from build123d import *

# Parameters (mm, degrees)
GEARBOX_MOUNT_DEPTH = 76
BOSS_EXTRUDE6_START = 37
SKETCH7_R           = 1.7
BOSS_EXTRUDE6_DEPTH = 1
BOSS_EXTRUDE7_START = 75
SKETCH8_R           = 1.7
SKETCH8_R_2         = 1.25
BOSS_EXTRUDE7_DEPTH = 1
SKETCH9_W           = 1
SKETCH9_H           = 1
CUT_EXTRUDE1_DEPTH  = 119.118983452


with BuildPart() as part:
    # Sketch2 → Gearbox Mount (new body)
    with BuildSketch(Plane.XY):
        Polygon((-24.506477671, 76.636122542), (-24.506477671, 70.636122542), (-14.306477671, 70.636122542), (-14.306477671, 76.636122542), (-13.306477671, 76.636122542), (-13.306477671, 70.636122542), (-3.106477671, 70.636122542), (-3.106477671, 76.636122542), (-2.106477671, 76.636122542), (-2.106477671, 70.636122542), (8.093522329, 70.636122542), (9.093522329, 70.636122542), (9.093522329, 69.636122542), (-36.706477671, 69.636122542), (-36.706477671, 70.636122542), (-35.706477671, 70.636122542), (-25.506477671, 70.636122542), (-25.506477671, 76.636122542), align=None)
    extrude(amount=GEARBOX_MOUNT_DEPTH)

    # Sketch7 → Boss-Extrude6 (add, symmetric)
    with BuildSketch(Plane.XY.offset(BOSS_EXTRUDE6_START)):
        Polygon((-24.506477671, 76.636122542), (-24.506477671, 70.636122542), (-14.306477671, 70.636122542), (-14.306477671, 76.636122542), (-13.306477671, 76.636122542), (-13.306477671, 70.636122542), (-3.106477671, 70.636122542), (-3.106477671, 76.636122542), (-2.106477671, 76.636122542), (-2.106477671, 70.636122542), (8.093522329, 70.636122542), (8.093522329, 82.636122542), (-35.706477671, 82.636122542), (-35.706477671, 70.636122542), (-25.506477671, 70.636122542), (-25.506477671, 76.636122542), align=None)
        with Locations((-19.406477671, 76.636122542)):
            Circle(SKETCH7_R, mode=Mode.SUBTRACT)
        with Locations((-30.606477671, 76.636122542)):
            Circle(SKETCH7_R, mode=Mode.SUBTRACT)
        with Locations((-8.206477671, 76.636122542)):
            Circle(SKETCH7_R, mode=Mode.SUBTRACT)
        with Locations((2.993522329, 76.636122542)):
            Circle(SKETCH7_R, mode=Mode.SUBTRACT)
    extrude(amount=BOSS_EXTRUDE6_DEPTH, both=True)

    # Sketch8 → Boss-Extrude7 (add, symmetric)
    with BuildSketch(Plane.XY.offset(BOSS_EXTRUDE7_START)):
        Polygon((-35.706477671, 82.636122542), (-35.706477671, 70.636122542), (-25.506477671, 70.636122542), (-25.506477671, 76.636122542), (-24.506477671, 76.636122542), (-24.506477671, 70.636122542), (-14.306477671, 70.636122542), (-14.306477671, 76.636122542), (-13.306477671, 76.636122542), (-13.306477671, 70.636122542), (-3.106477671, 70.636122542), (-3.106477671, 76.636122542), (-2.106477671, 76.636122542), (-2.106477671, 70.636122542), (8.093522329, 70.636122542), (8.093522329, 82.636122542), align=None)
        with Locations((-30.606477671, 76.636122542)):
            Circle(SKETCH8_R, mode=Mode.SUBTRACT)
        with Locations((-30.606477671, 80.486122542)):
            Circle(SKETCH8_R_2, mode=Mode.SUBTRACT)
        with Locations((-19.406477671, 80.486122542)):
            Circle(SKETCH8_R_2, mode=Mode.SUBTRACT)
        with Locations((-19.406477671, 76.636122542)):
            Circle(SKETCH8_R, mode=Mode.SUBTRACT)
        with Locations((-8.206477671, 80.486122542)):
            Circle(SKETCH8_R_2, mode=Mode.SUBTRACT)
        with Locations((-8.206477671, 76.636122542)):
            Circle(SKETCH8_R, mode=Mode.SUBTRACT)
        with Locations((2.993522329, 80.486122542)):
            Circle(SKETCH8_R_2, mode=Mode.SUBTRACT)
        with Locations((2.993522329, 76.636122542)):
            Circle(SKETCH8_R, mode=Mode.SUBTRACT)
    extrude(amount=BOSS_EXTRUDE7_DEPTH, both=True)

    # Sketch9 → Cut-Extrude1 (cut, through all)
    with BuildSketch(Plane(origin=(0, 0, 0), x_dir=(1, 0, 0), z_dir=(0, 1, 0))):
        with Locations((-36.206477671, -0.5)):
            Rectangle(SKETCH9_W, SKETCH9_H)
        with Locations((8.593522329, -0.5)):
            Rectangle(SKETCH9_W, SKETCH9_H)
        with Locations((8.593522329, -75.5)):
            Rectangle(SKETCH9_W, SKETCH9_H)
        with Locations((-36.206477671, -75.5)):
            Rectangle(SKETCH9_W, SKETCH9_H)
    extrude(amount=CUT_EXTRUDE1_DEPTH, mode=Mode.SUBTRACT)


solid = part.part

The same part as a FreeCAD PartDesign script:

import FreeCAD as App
import Part
import Sketcher
from FreeCAD import Vector
Q = App.Units.Quantity


def add_polygon(sketch, points):
    """Adds a closed chain of lines whose ends are joined by coincident constraints."""
    first, n = sketch.GeometryCount, len(points)
    for a, b in zip(points, points[1:] + points[:1]):
        sketch.addGeometry(Part.LineSegment(App.Vector(*a, 0), App.Vector(*b, 0)), False)
    for i in range(n):
        sketch.addConstraint(Sketcher.Constraint("Coincident", first + i, 2, first + (i + 1) % n, 1))

doc = App.newDocument("Part")
body = doc.addObject("PartDesign::Body", "Body")

# Sketch on XY plane
sketch1 = doc.addObject("Sketcher::SketchObject", "Sketch")
body.addObject(sketch1)
sketch1.AttachmentSupport = (doc.XY_Plane, [""])
sketch1.MapMode = "FlatFace"
add_polygon(sketch1, [(-24.506478, 70.636123), (-24.506478, 76.636123), (-25.506478, 76.636123), (-25.506478, 70.636123), (-36.706478, 70.636123), (-36.706478, 69.636123), (9.093522, 69.636123), (9.093522, 70.636123), (-2.106478, 70.636123), (-2.106478, 76.636123), (-3.106478, 76.636123), (-3.106478, 70.636123), (-13.306478, 70.636123), (-13.306478, 76.636123), (-14.306478, 76.636123), (-14.306478, 70.636123)])  # lines 0-15
sketch1.addConstraint([
    Sketcher.Constraint("Vertical", 0),
    Sketcher.Constraint("Horizontal", 1),
    Sketcher.Constraint("Vertical", 2),
    Sketcher.Constraint("Horizontal", 3),
    Sketcher.Constraint("Vertical", 4),
    Sketcher.Constraint("Horizontal", 5),
    Sketcher.Constraint("Vertical", 6),
    Sketcher.Constraint("Horizontal", 7),
    Sketcher.Constraint("Vertical", 8),
    Sketcher.Constraint("Horizontal", 9),
    Sketcher.Constraint("Vertical", 10),
    Sketcher.Constraint("Horizontal", 11),
    Sketcher.Constraint("Vertical", 12),
    Sketcher.Constraint("Horizontal", 13),
    Sketcher.Constraint("Vertical", 14),
    Sketcher.Constraint("Horizontal", 15),
    Sketcher.Constraint("Horizontal", 3, 2, 6, 2),
    Sketcher.Constraint("Horizontal", 1, 2, 8, 2),
    Sketcher.Constraint("Horizontal", 7, 2, 10, 2),
    Sketcher.Constraint("Horizontal", 9, 2, 12, 2),
    Sketcher.Constraint("Horizontal", 11, 2, 14, 2),
    Sketcher.Constraint("Equal", 3, 7),
    Sketcher.Constraint("Equal", 1, 9),
    Sketcher.Constraint("Equal", 9, 13),
    Sketcher.Constraint("Equal", 11, 15),
    Sketcher.Constraint("Equal", 13, 4),
    Sketcher.Constraint("DistanceX", 1, 2, 1, 1, Q("1 mm")),
    Sketcher.Constraint("DistanceY", 0, 1, 0, 2, Q("6 mm")),
    Sketcher.Constraint("DistanceX", 3, 2, 3, 1, Q("11.2 mm")),
    Sketcher.Constraint("DistanceX", 5, 1, 5, 2, Q("45.8 mm")),
    Sketcher.Constraint("DistanceX", 0, 2, -1, 1, Q("24.506478 mm")),
    Sketcher.Constraint("DistanceY", -1, 1, 0, 2, Q("76.636123 mm")),
])
pad1 = doc.addObject("PartDesign::Pad", "Pad")
body.addObject(pad1)
pad1.Profile = sketch1
pad1.Length = 76

# Sketch on XY plane
sketch2 = doc.addObject("Sketcher::SketchObject", "Sketch001")
body.addObject(sketch2)
sketch2.AttachmentSupport = (doc.XY_Plane, [""])
sketch2.MapMode = "FlatFace"
sketch2.AttachmentOffset = App.Placement(Vector(0, 0, 37), App.Rotation())
add_polygon(sketch2, [(-24.506478, 76.636123), (-24.506478, 70.636123), (-14.306478, 70.636123), (-14.306478, 76.636123), (-13.306478, 76.636123), (-13.306478, 70.636123), (-3.106478, 70.636123), (-3.106478, 76.636123), (-2.106478, 76.636123), (-2.106478, 70.636123), (8.093522, 70.636123), (8.093522, 82.636123), (-35.706478, 82.636123), (-35.706478, 70.636123), (-25.506478, 70.636123), (-25.506478, 76.636123)])  # lines 0-15
sketch2.addGeometry(Part.Circle(Vector(-30.606478, 76.636123, 0), Vector(0, 0, 1), 1.7), False)  # 16
sketch2.addGeometry(Part.Circle(Vector(-19.406478, 76.636123, 0), Vector(0, 0, 1), 1.7), False)  # 17
sketch2.addGeometry(Part.Circle(Vector(-8.206478, 76.636123, 0), Vector(0, 0, 1), 1.7), False)  # 18
sketch2.addGeometry(Part.Circle(Vector(2.993522, 76.636123, 0), Vector(0, 0, 1), 1.7), False)  # 19
sketch2.addConstraint([
    Sketcher.Constraint("Vertical", 0),
    Sketcher.Constraint("Horizontal", 1),
    Sketcher.Constraint("Vertical", 2),
    Sketcher.Constraint("Horizontal", 3),
    Sketcher.Constraint("Vertical", 4),
    Sketcher.Constraint("Horizontal", 5),
    Sketcher.Constraint("Vertical", 6),
    Sketcher.Constraint("Horizontal", 7),
    Sketcher.Constraint("Vertical", 8),
    Sketcher.Constraint("Horizontal", 9),
    Sketcher.Constraint("Vertical", 10),
    Sketcher.Constraint("Horizontal", 11),
    Sketcher.Constraint("Vertical", 12),
    Sketcher.Constraint("Horizontal", 13),
    Sketcher.Constraint("Vertical", 14),
    Sketcher.Constraint("Horizontal", 15),
    Sketcher.Constraint("Equal", 16, 17),
    Sketcher.Constraint("Equal", 17, 18),
    Sketcher.Constraint("Equal", 18, 19),
    Sketcher.Constraint("Horizontal", 16, 3, 17, 3),
    Sketcher.Constraint("Horizontal", 17, 3, 18, 3),
    Sketcher.Constraint("Horizontal", 18, 3, 19, 3),
    Sketcher.Constraint("Horizontal", 19, 3, 2, 2),
    Sketcher.Constraint("Horizontal", 1, 2, 4, 2),
    Sketcher.Constraint("Horizontal", 3, 2, 6, 2),
    Sketcher.Constraint("Horizontal", 5, 2, 8, 2),
    Sketcher.Constraint("Horizontal", 9, 2, 12, 2),
    Sketcher.Constraint("Horizontal", 7, 2, 14, 2),
    Sketcher.Constraint("Equal", 1, 5),
    Sketcher.Constraint("Equal", 3, 7),
    Sketcher.Constraint("Equal", 5, 9),
    Sketcher.Constraint("Equal", 9, 13),
    Sketcher.Constraint("Equal", 7, 15),
    Sketcher.Constraint("Diameter", 16, Q("3.4 mm")),
    Sketcher.Constraint("DistanceX", 3, 1, 3, 2, Q("1 mm")),
    Sketcher.Constraint("DistanceY", 0, 2, 0, 1, Q("6 mm")),
    Sketcher.Constraint("DistanceY", 10, 1, 10, 2, Q("12 mm")),
    Sketcher.Constraint("DistanceX", 1, 1, 1, 2, Q("10.2 mm")),
    Sketcher.Constraint("DistanceX", 16, 3, 17, 3, Q("11.2 mm")),
    Sketcher.Constraint("DistanceX", 17, 3, 18, 3, Q("11.2 mm")),
    Sketcher.Constraint("DistanceX", 18, 3, 19, 3, Q("11.2 mm")),
    Sketcher.Constraint("DistanceX", 0, 2, 17, 3, Q("5.1 mm")),
    Sketcher.Constraint("DistanceX", 16, 3, -1, 1, Q("30.606478 mm")),
    Sketcher.Constraint("DistanceY", -1, 1, 16, 3, Q("76.636123 mm")),
])
pad2 = doc.addObject("PartDesign::Pad", "Pad001")
body.addObject(pad2)
pad2.Profile = sketch2
pad2.Length = 2
pad2.Midplane = True

# Sketch on XY plane
sketch3 = doc.addObject("Sketcher::SketchObject", "Sketch002")
body.addObject(sketch3)
sketch3.AttachmentSupport = (doc.XY_Plane, [""])
sketch3.MapMode = "FlatFace"
sketch3.AttachmentOffset = App.Placement(Vector(0, 0, 75), App.Rotation())
add_polygon(sketch3, [(-35.706478, 82.636123), (-35.706478, 70.636123), (-25.506478, 70.636123), (-25.506478, 76.636123), (-24.506478, 76.636123), (-24.506478, 70.636123), (-14.306478, 70.636123), (-14.306478, 76.636123), (-13.306478, 76.636123), (-13.306478, 70.636123), (-3.106478, 70.636123), (-3.106478, 76.636123), (-2.106478, 76.636123), (-2.106478, 70.636123), (8.093522, 70.636123), (8.093522, 82.636123)])  # lines 0-15
sketch3.addGeometry(Part.Circle(Vector(-30.606478, 76.636123, 0), Vector(0, 0, 1), 1.7), False)  # 16
sketch3.addGeometry(Part.Circle(Vector(-19.406478, 76.636123, 0), Vector(0, 0, 1), 1.7), False)  # 17
sketch3.addGeometry(Part.Circle(Vector(-8.206478, 76.636123, 0), Vector(0, 0, 1), 1.7), False)  # 18
sketch3.addGeometry(Part.Circle(Vector(2.993522, 76.636123, 0), Vector(0, 0, 1), 1.7), False)  # 19
sketch3.addGeometry(Part.Circle(Vector(-30.606478, 80.486123, 0), Vector(0, 0, 1), 1.25), False)  # 20
sketch3.addGeometry(Part.Circle(Vector(-19.406478, 80.486123, 0), Vector(0, 0, 1), 1.25), False)  # 21
sketch3.addGeometry(Part.Circle(Vector(-8.206478, 80.486123, 0), Vector(0, 0, 1), 1.25), False)  # 22
sketch3.addGeometry(Part.Circle(Vector(2.993522, 80.486123, 0), Vector(0, 0, 1), 1.25), False)  # 23
sketch3.addConstraint([
    Sketcher.Constraint("Vertical", 0),
    Sketcher.Constraint("Horizontal", 1),
    Sketcher.Constraint("Vertical", 2),
    Sketcher.Constraint("Horizontal", 3),
    Sketcher.Constraint("Vertical", 4),
    Sketcher.Constraint("Horizontal", 5),
    Sketcher.Constraint("Vertical", 6),
    Sketcher.Constraint("Horizontal", 7),
    Sketcher.Constraint("Vertical", 8),
    Sketcher.Constraint("Horizontal", 9),
    Sketcher.Constraint("Vertical", 10),
    Sketcher.Constraint("Horizontal", 11),
    Sketcher.Constraint("Vertical", 12),
    Sketcher.Constraint("Horizontal", 13),
    Sketcher.Constraint("Vertical", 14),
    Sketcher.Constraint("Horizontal", 15),
    Sketcher.Constraint("Equal", 16, 17),
    Sketcher.Constraint("Equal", 17, 18),
    Sketcher.Constraint("Equal", 18, 19),
    Sketcher.Constraint("Equal", 20, 21),
    Sketcher.Constraint("Equal", 21, 22),
    Sketcher.Constraint("Equal", 22, 23),
    Sketcher.Constraint("Horizontal", 16, 3, 17, 3),
    Sketcher.Constraint("Horizontal", 17, 3, 18, 3),
    Sketcher.Constraint("Horizontal", 18, 3, 19, 3),
    Sketcher.Constraint("Horizontal", 20, 3, 21, 3),
    Sketcher.Constraint("Horizontal", 21, 3, 22, 3),
    Sketcher.Constraint("Horizontal", 22, 3, 23, 3),
    Sketcher.Constraint("Horizontal", 19, 3, 2, 2),
    Sketcher.Constraint("Horizontal", 1, 2, 4, 2),
    Sketcher.Constraint("Horizontal", 3, 2, 6, 2),
    Sketcher.Constraint("Horizontal", 5, 2, 8, 2),
    Sketcher.Constraint("Horizontal", 7, 2, 10, 2),
    Sketcher.Constraint("Horizontal", 9, 2, 12, 2),
    Sketcher.Constraint("Vertical", 16, 3, 20, 3),
    Sketcher.Constraint("Vertical", 17, 3, 21, 3),
    Sketcher.Constraint("Vertical", 18, 3, 22, 3),
    Sketcher.Constraint("Vertical", 19, 3, 23, 3),
    Sketcher.Constraint("Equal", 1, 5),
    Sketcher.Constraint("Equal", 3, 7),
    Sketcher.Constraint("Equal", 5, 9),
    Sketcher.Constraint("Equal", 7, 11),
    Sketcher.Constraint("Equal", 9, 13),
    Sketcher.Constraint("Diameter", 16, Q("3.4 mm")),
    Sketcher.Constraint("Diameter", 20, Q("2.5 mm")),
    Sketcher.Constraint("DistanceX", 3, 1, 3, 2, Q("1 mm")),
    Sketcher.Constraint("DistanceY", 0, 2, 0, 1, Q("12 mm")),
    Sketcher.Constraint("DistanceY", 2, 1, 2, 2, Q("6 mm")),
    Sketcher.Constraint("DistanceX", 1, 1, 1, 2, Q("10.2 mm")),
    Sketcher.Constraint("DistanceX", 16, 3, 17, 3, Q("11.2 mm")),
    Sketcher.Constraint("DistanceX", 17, 3, 18, 3, Q("11.2 mm")),
    Sketcher.Constraint("DistanceX", 18, 3, 19, 3, Q("11.2 mm")),
    Sketcher.Constraint("DistanceX", 0, 2, 16, 3, Q("5.1 mm")),
    Sketcher.Constraint("DistanceY", 16, 3, 20, 3, Q("3.85 mm")),
    Sketcher.Constraint("DistanceX", 16, 3, -1, 1, Q("30.606478 mm")),
    Sketcher.Constraint("DistanceY", -1, 1, 16, 3, Q("76.636123 mm")),
])
pad3 = doc.addObject("PartDesign::Pad", "Pad002")
body.addObject(pad3)
pad3.Profile = sketch3
pad3.Length = 2
pad3.Midplane = True

# Sketch on XZ plane
sketch4 = doc.addObject("Sketcher::SketchObject", "Sketch003")
body.addObject(sketch4)
sketch4.AttachmentSupport = (doc.XZ_Plane, [""])
sketch4.MapMode = "FlatFace"
add_polygon(sketch4, [(-36.706478, 0), (-36.706478, 1), (-35.706478, 1), (-35.706478, 0)])  # lines 0-3
add_polygon(sketch4, [(8.093522, 0), (8.093522, 1), (9.093522, 1), (9.093522, 0)])  # lines 4-7
add_polygon(sketch4, [(8.093522, 75), (8.093522, 76), (9.093522, 76), (9.093522, 75)])  # lines 8-11
add_polygon(sketch4, [(-36.706478, 75), (-36.706478, 76), (-35.706478, 76), (-35.706478, 75)])  # lines 12-15
sketch4.addConstraint([
    Sketcher.Constraint("Vertical", 0),
    Sketcher.Constraint("Horizontal", 1),
    Sketcher.Constraint("Vertical", 2),
    Sketcher.Constraint("Horizontal", 3),
    Sketcher.Constraint("Vertical", 4),
    Sketcher.Constraint("Horizontal", 5),
    Sketcher.Constraint("Vertical", 6),
    Sketcher.Constraint("Horizontal", 7),
    Sketcher.Constraint("Vertical", 8),
    Sketcher.Constraint("Horizontal", 9),
    Sketcher.Constraint("Vertical", 10),
    Sketcher.Constraint("Horizontal", 11),
    Sketcher.Constraint("Vertical", 12),
    Sketcher.Constraint("Horizontal", 13),
    Sketcher.Constraint("Vertical", 14),
    Sketcher.Constraint("Horizontal", 15),
    Sketcher.Constraint("PointOnObject", 2, 2, -1),
    Sketcher.Constraint("PointOnObject", 6, 2, -1),
    Sketcher.Constraint("Horizontal", 1, 2, 4, 2),
    Sketcher.Constraint("Horizontal", 9, 2, 12, 2),
    Sketcher.Constraint("Horizontal", 11, 2, 14, 2),
    Sketcher.Constraint("Vertical", 7, 2, 8, 2),
    Sketcher.Constraint("Vertical", 6, 2, 9, 2),
    Sketcher.Constraint("Vertical", 3, 2, 12, 2),
    Sketcher.Constraint("Vertical", 2, 2, 13, 2),
    Sketcher.Constraint("Equal", 3, 5),
    Sketcher.Constraint("Equal", 15, 0),
    Sketcher.Constraint("Equal", 6, 8),
    Sketcher.Constraint("DistanceX", 1, 1, 1, 2, Q("1 mm")),
    Sketcher.Constraint("DistanceY", -1, 1, 8, 2, Q("76 mm")),
    Sketcher.Constraint("DistanceX", 1, 2, 4, 2, Q("43.8 mm")),
    Sketcher.Constraint("DistanceX", 0, 2, -1, 1, Q("36.706478 mm")),
])
pocket1 = doc.addObject("PartDesign::Pocket", "Pocket")
body.addObject(pocket1)
pocket1.Profile = sketch4
pocket1.Type = "ThroughAll"

doc.recompute()
